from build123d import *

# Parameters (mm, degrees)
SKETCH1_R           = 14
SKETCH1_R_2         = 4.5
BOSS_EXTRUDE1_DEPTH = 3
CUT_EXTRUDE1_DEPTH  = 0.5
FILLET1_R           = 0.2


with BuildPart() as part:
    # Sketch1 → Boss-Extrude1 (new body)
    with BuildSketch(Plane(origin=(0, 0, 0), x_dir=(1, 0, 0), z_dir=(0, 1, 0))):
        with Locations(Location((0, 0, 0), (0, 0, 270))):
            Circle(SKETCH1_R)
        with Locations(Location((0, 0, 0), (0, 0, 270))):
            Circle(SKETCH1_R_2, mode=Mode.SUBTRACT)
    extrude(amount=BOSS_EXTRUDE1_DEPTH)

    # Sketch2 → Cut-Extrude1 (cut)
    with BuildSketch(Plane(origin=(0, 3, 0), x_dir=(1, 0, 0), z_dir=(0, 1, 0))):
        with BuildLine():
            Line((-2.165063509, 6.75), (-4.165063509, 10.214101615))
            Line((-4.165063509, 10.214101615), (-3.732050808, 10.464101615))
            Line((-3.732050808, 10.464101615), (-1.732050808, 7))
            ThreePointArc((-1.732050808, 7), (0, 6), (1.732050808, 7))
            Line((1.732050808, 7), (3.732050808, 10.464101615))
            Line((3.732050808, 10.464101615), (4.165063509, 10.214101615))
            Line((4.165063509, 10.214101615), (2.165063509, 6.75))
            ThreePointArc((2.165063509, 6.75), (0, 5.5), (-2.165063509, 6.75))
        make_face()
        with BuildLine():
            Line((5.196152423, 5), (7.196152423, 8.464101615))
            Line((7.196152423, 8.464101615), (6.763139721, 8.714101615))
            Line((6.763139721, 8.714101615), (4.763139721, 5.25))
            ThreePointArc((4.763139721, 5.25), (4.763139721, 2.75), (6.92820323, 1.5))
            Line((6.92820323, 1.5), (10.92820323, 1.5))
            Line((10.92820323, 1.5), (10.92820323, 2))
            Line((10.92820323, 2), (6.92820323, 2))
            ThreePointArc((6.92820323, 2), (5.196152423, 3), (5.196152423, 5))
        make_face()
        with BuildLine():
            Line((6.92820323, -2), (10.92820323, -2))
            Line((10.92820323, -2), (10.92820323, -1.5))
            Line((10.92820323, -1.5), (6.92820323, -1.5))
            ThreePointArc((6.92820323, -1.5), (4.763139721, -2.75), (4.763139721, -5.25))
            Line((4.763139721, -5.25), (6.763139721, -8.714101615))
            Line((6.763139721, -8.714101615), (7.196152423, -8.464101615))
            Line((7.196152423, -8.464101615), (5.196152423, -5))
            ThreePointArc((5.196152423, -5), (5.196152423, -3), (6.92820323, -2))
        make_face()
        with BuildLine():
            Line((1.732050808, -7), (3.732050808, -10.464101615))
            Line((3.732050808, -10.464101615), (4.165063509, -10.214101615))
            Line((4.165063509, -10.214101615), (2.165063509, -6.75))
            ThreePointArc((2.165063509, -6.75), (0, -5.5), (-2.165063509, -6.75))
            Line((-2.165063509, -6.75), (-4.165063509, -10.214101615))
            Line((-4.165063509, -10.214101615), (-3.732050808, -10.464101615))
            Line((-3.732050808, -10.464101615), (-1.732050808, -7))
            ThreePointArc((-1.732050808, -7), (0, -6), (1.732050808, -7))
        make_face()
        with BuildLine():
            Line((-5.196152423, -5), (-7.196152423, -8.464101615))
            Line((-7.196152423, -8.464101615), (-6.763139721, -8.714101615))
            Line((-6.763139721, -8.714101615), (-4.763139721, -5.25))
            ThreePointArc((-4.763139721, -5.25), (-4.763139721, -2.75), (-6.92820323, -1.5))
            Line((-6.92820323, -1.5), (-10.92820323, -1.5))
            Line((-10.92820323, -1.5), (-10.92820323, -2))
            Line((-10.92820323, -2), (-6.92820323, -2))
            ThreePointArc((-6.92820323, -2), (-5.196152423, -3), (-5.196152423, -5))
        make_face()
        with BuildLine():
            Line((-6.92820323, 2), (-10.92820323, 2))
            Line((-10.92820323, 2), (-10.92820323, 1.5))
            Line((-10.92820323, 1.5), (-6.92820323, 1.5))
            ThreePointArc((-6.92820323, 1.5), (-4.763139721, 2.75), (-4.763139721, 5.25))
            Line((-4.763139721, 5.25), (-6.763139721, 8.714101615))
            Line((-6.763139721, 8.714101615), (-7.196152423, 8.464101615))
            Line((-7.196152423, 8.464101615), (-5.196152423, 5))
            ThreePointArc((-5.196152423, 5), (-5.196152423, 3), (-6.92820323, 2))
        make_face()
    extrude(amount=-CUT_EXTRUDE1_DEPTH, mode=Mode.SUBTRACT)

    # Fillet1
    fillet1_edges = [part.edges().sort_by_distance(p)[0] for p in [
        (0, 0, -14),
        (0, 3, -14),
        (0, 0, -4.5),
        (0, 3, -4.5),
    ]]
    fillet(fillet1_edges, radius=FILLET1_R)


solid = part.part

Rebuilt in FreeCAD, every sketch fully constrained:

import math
import FreeCAD as App
import Part
import Sketcher
from FreeCAD import Vector
Q = App.Units.Quantity


def edges_at(feature, points):
    """Names of the edges that pass closest to the given points."""
    edges = feature.Shape.Edges
    near = lambda p: min(range(len(edges)), key=lambda i: edges[i].distToShape(Part.Vertex(*p))[0])
    return sorted({f"Edge{near(p) + 1}" for p in points})

doc = App.newDocument("Part")
body = doc.addObject("PartDesign::Body", "Body")

sketch1 = body.newObject("Sketcher::SketchObject", "Sketch")
sketch1.AttachmentSupport = (doc.getObject("XZ_Plane"), [""])
sketch1.MapMode = "FlatFace"
sketch1.addGeometry([
    Part.Circle(Vector(0, 0, 0), Vector(0, 0, 1), 14),
    Part.Circle(Vector(0, 0, 0), Vector(0, 0, 1), 4.5),
], False)
sketch1.addConstraint([
    Sketcher.Constraint("Coincident", 0, 3, -1, 1),
    Sketcher.Constraint("Coincident", 1, 3, -1, 1),
    Sketcher.Constraint("Diameter", 0, Q("28 mm")),
    Sketcher.Constraint("Diameter", 1, Q("9 mm")),
])
pad1 = body.newObject("PartDesign::Pad", "Pad")
pad1.Profile = sketch1
pad1.Length = 3
pad1.Reversed = True

sketch2 = body.newObject("Sketcher::SketchObject", "Sketch001")
sketch2.AttachmentSupport = (doc.getObject("XZ_Plane"), [""])
sketch2.MapMode = "FlatFace"
sketch2.AttachmentOffset = App.Placement(Vector(0, 0, -3), App.Rotation())
sketch2.addGeometry([
    Part.LineSegment(Vector(-4.165064, -10.214102, 0), Vector(-2.165064, -6.75, 0)),
    Part.ArcOfCircle(Part.Circle(Vector(0, -8, 0), Vector(0, 0, 1), 2.5), math.radians(30), math.radians(150)),
    Part.LineSegment(Vector(2.165064, -6.75, 0), Vector(4.165064, -10.214102, 0)),
    Part.LineSegment(Vector(4.165064, -10.214102, 0), Vector(3.732051, -10.464102, 0)),
    Part.LineSegment(Vector(3.732051, -10.464102, 0), Vector(1.732051, -7, 0)),
    Part.ArcOfCircle(Part.Circle(Vector(0, -8, 0), Vector(0, 0, 1), 2), math.radians(30), math.radians(150)),
    Part.LineSegment(Vector(-1.732051, -7, 0), Vector(-3.732051, -10.464102, 0)),
    Part.LineSegment(Vector(-3.732051, -10.464102, 0), Vector(-4.165064, -10.214102, 0)),
    Part.LineSegment(Vector(5.196152, -5, 0), Vector(7.196152, -8.464102, 0)),
    Part.LineSegment(Vector(7.196152, -8.464102, 0), Vector(6.76314, -8.714102, 0)),
    Part.LineSegment(Vector(6.76314, -8.714102, 0), Vector(4.76314, -5.25, 0)),
    Part.ArcOfCircle(Part.Circle(Vector(6.928203, -4, 0), Vector(0, 0, 1), 2.5), math.radians(90), math.radians(210)),
    Part.LineSegment(Vector(6.928203, -1.5, 0), Vector(10.928203, -1.5, 0)),
    Part.LineSegment(Vector(10.928203, -1.5, 0), Vector(10.928203, -2, 0)),
    Part.LineSegment(Vector(10.928203, -2, 0), Vector(6.928203, -2, 0)),
    Part.ArcOfCircle(Part.Circle(Vector(6.928203, -4, 0), Vector(0, 0, 1), 2), math.radians(90), math.radians(210)),
    Part.LineSegment(Vector(6.928203, 2, 0), Vector(10.928203, 2, 0)),
    Part.LineSegment(Vector(10.928203, 2, 0), Vector(10.928203, 1.5, 0)),
    Part.LineSegment(Vector(10.928203, 1.5, 0), Vector(6.928203, 1.5, 0)),
    Part.ArcOfCircle(Part.Circle(Vector(6.928203, 4, 0), Vector(0, 0, 1), 2.5), math.radians(150), math.radians(270)),
    Part.LineSegment(Vector(4.76314, 5.25, 0), Vector(6.76314, 8.714102, 0)),
    Part.LineSegment(Vector(6.76314, 8.714102, 0), Vector(7.196152, 8.464102, 0)),
    Part.LineSegment(Vector(7.196152, 8.464102, 0), Vector(5.196152, 5, 0)),
    Part.ArcOfCircle(Part.Circle(Vector(6.928203, 4, 0), Vector(0, 0, 1), 2), math.radians(150), math.radians(270)),
    Part.LineSegment(Vector(1.732051, 7, 0), Vector(3.732051, 10.464102, 0)),
    Part.LineSegment(Vector(3.732051, 10.464102, 0), Vector(4.165064, 10.214102, 0)),
    Part.LineSegment(Vector(4.165064, 10.214102, 0), Vector(2.165064, 6.75, 0)),
    Part.ArcOfCircle(Part.Circle(Vector(0, 8, 0), Vector(0, 0, 1), 2.5), math.radians(-150), math.radians(-30)),
    Part.LineSegment(Vector(-2.165064, 6.75, 0), Vector(-4.165064, 10.214102, 0)),
    Part.LineSegment(Vector(-4.165064, 10.214102, 0), Vector(-3.732051, 10.464102, 0)),
    Part.LineSegment(Vector(-3.732051, 10.464102, 0), Vector(-1.732051, 7, 0)),
    Part.ArcOfCircle(Part.Circle(Vector(0, 8, 0), Vector(0, 0, 1), 2), math.radians(-150), math.radians(-30)),
    Part.LineSegment(Vector(-5.196152, 5, 0), Vector(-7.196152, 8.464102, 0)),
    Part.LineSegment(Vector(-7.196152, 8.464102, 0), Vector(-6.76314, 8.714102, 0)),
    Part.LineSegment(Vector(-6.76314, 8.714102, 0), Vector(-4.76314, 5.25, 0)),
    Part.ArcOfCircle(Part.Circle(Vector(-6.928203, 4, 0), Vector(0, 0, 1), 2.5), math.radians(-90), math.radians(30)),
    Part.LineSegment(Vector(-6.928203, 1.5, 0), Vector(-10.928203, 1.5, 0)),
    Part.LineSegment(Vector(-10.928203, 1.5, 0), Vector(-10.928203, 2, 0)),
    Part.LineSegment(Vector(-10.928203, 2, 0), Vector(-6.928203, 2, 0)),
    Part.ArcOfCircle(Part.Circle(Vector(-6.928203, 4, 0), Vector(0, 0, 1), 2), math.radians(-90), math.radians(30)),
    Part.LineSegment(Vector(-6.928203, -2, 0), Vector(-10.928203, -2, 0)),
    Part.LineSegment(Vector(-10.928203, -2, 0), Vector(-10.928203, -1.5, 0)),
    Part.LineSegment(Vector(-10.928203, -1.5, 0), Vector(-6.928203, -1.5, 0)),
    Part.ArcOfCircle(Part.Circle(Vector(-6.928203, -4, 0), Vector(0, 0, 1), 2.5), math.radians(-30), math.radians(90)),
    Part.LineSegment(Vector(-4.76314, -5.25, 0), Vector(-6.76314, -8.714102, 0)),
    Part.LineSegment(Vector(-6.76314, -8.714102, 0), Vector(-7.196152, -8.464102, 0)),
    Part.LineSegment(Vector(-7.196152, -8.464102, 0), Vector(-5.196152, -5, 0)),
    Part.ArcOfCircle(Part.Circle(Vector(-6.928203, -4, 0), Vector(0, 0, 1), 2), math.radians(-30), math.radians(90)),
], False)
sketch2.addConstraint([
    Sketcher.Constraint("Tangent", 0, 2, 1, 2),
    Sketcher.Constraint("Tangent", 1, 1, 2, 1),
    Sketcher.Constraint("Coincident", 2, 2, 3, 1),
    Sketcher.Constraint("Coincident", 3, 2, 4, 1),
    Sketcher.Constraint("Tangent", 4, 2, 5, 1),
    Sketcher.Constraint("Tangent", 5, 2, 6, 1),
    Sketcher.Constraint("Coincident", 6, 2, 7, 1),
    Sketcher.Constraint("Coincident", 7, 2, 0, 1),
    Sketcher.Constraint("Coincident", 8, 2, 9, 1),
    Sketcher.Constraint("Coincident", 9, 2, 10, 1),
    Sketcher.Constraint("Tangent", 10, 2, 11, 2),
    Sketcher.Constraint("Tangent", 11, 1, 12, 1),
    Sketcher.Constraint("Coincident", 12, 2, 13, 1),
    Sketcher.Constraint("Coincident", 13, 2, 14, 1),
    Sketcher.Constraint("Tangent", 14, 2, 15, 1),
    Sketcher.Constraint("Tangent", 15, 2, 8, 1),
    Sketcher.Constraint("Coincident", 16, 2, 17, 1),
    Sketcher.Constraint("Coincident", 17, 2, 18, 1),
    Sketcher.Constraint("Tangent", 18, 2, 19, 2),
    Sketcher.Constraint("Tangent", 19, 1, 20, 1),
    Sketcher.Constraint("Coincident", 20, 2, 21, 1),
    Sketcher.Constraint("Coincident", 21, 2, 22, 1),
    Sketcher.Constraint("Tangent", 22, 2, 23, 1),
    Sketcher.Constraint("Tangent", 23, 2, 16, 1),
    Sketcher.Constraint("Coincident", 24, 2, 25, 1),
    Sketcher.Constraint("Coincident", 25, 2, 26, 1),
    Sketcher.Constraint("Tangent", 26, 2, 27, 2),
    Sketcher.Constraint("Tangent", 27, 1, 28, 1),
    Sketcher.Constraint("Coincident", 28, 2, 29, 1),
    Sketcher.Constraint("Coincident", 29, 2, 30, 1),
    Sketcher.Constraint("Tangent", 30, 2, 31, 1),
    Sketcher.Constraint("Tangent", 31, 2, 24, 1),
    Sketcher.Constraint("Coincident", 32, 2, 33, 1),
    Sketcher.Constraint("Coincident", 33, 2, 34, 1),
    Sketcher.Constraint("Tangent", 34, 2, 35, 2),
    Sketcher.Constraint("Tangent", 35, 1, 36, 1),
    Sketcher.Constraint("Coincident", 36, 2, 37, 1),
    Sketcher.Constraint("Coincident", 37, 2, 38, 1),
    Sketcher.Constraint("Tangent", 38, 2, 39, 1),
    Sketcher.Constraint("Tangent", 39, 2, 32, 1),
    Sketcher.Constraint("Coincident", 40, 2, 41, 1),
    Sketcher.Constraint("Coincident", 41, 2, 42, 1),
    Sketcher.Constraint("Tangent", 42, 2, 43, 2),
    Sketcher.Constraint("Tangent", 43, 1, 44, 1),
    Sketcher.Constraint("Coincident", 44, 2, 45, 1),
    Sketcher.Constraint("Coincident", 45, 2, 46, 1),
    Sketcher.Constraint("Tangent", 46, 2, 47, 1),
    Sketcher.Constraint("Tangent", 47, 2, 40, 1),
    Sketcher.Constraint("Horizontal", 12),
    Sketcher.Constraint("Vertical", 13),
    Sketcher.Constraint("Horizontal", 14),
    Sketcher.Constraint("Horizontal", 16),
    Sketcher.Constraint("Vertical", 17),
    Sketcher.Constraint("Horizontal", 18),
    Sketcher.Constraint("Horizontal", 36),
    Sketcher.Constraint("Vertical", 37),
    Sketcher.Constraint("Horizontal", 38),
    Sketcher.Constraint("Horizontal", 40),
    Sketcher.Constraint("Vertical", 41),
    Sketcher.Constraint("Horizontal", 42),
    Sketcher.Constraint("Coincident", 5, 3, 1, 3),
    Sketcher.Constraint("Coincident", 15, 3, 11, 3),
    Sketcher.Constraint("Coincident", 23, 3, 19, 3),
    Sketcher.Constraint("Coincident", 31, 3, 27, 3),
    Sketcher.Constraint("Coincident", 39, 3, 35, 3),
    Sketcher.Constraint("Coincident", 47, 3, 43, 3),
    Sketcher.Constraint("Equal", 1, 11),
    Sketcher.Constraint("Equal", 5, 15),
    Sketcher.Constraint("Equal", 11, 19),
    Sketcher.Constraint("Equal", 15, 23),
    Sketcher.Constraint("Equal", 19, 27),
    Sketcher.Constraint("Equal", 23, 31),
    Sketcher.Constraint("Equal", 27, 35),
    Sketcher.Constraint("Equal", 31, 39),
    Sketcher.Constraint("Equal", 35, 43),
    Sketcher.Constraint("Equal", 39, 47),
    Sketcher.Constraint("Symmetric", 1, 3, 27, 3, -1, 1),
    Sketcher.Constraint("Symmetric", 11, 3, 35, 3, -1, 1),
    Sketcher.Constraint("Symmetric", 19, 3, 43, 3, -1, 1),
    Sketcher.Constraint("Symmetric", 6, 2, 24, 2, -1, 1),
    Sketcher.Constraint("Symmetric", 7, 2, 25, 2, -1, 1),
    Sketcher.Constraint("Symmetric", 2, 2, 28, 2, -1, 1),
    Sketcher.Constraint("Symmetric", 3, 2, 29, 2, -1, 1),
    Sketcher.Constraint("Symmetric", 8, 2, 32, 2, -1, 1),
    Sketcher.Constraint("Symmetric", 9, 2, 33, 2, -1, 1),
    Sketcher.Constraint("Symmetric", 20, 2, 44, 2, -1, 1),
    Sketcher.Constraint("Symmetric", 21, 2, 45, 2, -1, 1),
    Sketcher.Constraint("Symmetric", 19, 3, 35, 3, -2),
    Sketcher.Constraint("Symmetric", 0, 2, 1, 1, -2),
    Sketcher.Constraint("Symmetric", 3, 2, 6, 2, -2),
    Sketcher.Constraint("Symmetric", 21, 2, 32, 2, -2),
    Sketcher.Constraint("Symmetric", 20, 2, 33, 2, -2),
    Sketcher.Constraint("Perpendicular", 2, 3),
    Sketcher.Constraint("Perpendicular", 3, 4),
    Sketcher.Constraint("Perpendicular", 6, 7),
    Sketcher.Constraint("Parallel", 4, 8),
    Sketcher.Constraint("Perpendicular", 8, 9),
    Sketcher.Constraint("Perpendicular", 9, 10),
    Sketcher.Constraint("Vertical", 13, 2, 16, 2),
    Sketcher.Constraint("Vertical", 37, 2, 40, 2),
    Sketcher.Constraint("Equal", 18, 36),
    Sketcher.Constraint("Equal", 6, 8),
    Sketcher.Constraint("Radius", 5, Q("2 mm")),
    Sketcher.Constraint("Radius", 1, Q("2.5 mm")),
    Sketcher.Constraint("DistanceX", 12, 1, 12, 2, Q("4 mm")),
    Sketcher.Constraint("Angle", 0, Q("60 deg")),
    Sketcher.Constraint("Distance", 0, Q("4 mm")),
    Sketcher.Constraint("DistanceY", 1, 3, -1, 1, Q("8 mm")),
    Sketcher.Constraint("DistanceY", 11, 3, -1, 1, Q("4 mm")),
    Sketcher.Constraint("DistanceX", 3, 2, 8, 2, Q("3.464102 mm")),
])
pocket1 = body.newObject("PartDesign::Pocket", "Pocket")
pocket1.Profile = sketch2
pocket1.Length = 0.5
pocket1.Reversed = True
doc.recompute()

fillet = body.newObject("PartDesign::Fillet", "Fillet")
fillet.Base = (pocket1, edges_at(pocket1, [
    (0, 0, -14),
    (0, 3, -14),
    (0, 0, -4.5),
    (0, 3, -4.5),
]))
fillet.Radius = 0.2

doc.recompute()
